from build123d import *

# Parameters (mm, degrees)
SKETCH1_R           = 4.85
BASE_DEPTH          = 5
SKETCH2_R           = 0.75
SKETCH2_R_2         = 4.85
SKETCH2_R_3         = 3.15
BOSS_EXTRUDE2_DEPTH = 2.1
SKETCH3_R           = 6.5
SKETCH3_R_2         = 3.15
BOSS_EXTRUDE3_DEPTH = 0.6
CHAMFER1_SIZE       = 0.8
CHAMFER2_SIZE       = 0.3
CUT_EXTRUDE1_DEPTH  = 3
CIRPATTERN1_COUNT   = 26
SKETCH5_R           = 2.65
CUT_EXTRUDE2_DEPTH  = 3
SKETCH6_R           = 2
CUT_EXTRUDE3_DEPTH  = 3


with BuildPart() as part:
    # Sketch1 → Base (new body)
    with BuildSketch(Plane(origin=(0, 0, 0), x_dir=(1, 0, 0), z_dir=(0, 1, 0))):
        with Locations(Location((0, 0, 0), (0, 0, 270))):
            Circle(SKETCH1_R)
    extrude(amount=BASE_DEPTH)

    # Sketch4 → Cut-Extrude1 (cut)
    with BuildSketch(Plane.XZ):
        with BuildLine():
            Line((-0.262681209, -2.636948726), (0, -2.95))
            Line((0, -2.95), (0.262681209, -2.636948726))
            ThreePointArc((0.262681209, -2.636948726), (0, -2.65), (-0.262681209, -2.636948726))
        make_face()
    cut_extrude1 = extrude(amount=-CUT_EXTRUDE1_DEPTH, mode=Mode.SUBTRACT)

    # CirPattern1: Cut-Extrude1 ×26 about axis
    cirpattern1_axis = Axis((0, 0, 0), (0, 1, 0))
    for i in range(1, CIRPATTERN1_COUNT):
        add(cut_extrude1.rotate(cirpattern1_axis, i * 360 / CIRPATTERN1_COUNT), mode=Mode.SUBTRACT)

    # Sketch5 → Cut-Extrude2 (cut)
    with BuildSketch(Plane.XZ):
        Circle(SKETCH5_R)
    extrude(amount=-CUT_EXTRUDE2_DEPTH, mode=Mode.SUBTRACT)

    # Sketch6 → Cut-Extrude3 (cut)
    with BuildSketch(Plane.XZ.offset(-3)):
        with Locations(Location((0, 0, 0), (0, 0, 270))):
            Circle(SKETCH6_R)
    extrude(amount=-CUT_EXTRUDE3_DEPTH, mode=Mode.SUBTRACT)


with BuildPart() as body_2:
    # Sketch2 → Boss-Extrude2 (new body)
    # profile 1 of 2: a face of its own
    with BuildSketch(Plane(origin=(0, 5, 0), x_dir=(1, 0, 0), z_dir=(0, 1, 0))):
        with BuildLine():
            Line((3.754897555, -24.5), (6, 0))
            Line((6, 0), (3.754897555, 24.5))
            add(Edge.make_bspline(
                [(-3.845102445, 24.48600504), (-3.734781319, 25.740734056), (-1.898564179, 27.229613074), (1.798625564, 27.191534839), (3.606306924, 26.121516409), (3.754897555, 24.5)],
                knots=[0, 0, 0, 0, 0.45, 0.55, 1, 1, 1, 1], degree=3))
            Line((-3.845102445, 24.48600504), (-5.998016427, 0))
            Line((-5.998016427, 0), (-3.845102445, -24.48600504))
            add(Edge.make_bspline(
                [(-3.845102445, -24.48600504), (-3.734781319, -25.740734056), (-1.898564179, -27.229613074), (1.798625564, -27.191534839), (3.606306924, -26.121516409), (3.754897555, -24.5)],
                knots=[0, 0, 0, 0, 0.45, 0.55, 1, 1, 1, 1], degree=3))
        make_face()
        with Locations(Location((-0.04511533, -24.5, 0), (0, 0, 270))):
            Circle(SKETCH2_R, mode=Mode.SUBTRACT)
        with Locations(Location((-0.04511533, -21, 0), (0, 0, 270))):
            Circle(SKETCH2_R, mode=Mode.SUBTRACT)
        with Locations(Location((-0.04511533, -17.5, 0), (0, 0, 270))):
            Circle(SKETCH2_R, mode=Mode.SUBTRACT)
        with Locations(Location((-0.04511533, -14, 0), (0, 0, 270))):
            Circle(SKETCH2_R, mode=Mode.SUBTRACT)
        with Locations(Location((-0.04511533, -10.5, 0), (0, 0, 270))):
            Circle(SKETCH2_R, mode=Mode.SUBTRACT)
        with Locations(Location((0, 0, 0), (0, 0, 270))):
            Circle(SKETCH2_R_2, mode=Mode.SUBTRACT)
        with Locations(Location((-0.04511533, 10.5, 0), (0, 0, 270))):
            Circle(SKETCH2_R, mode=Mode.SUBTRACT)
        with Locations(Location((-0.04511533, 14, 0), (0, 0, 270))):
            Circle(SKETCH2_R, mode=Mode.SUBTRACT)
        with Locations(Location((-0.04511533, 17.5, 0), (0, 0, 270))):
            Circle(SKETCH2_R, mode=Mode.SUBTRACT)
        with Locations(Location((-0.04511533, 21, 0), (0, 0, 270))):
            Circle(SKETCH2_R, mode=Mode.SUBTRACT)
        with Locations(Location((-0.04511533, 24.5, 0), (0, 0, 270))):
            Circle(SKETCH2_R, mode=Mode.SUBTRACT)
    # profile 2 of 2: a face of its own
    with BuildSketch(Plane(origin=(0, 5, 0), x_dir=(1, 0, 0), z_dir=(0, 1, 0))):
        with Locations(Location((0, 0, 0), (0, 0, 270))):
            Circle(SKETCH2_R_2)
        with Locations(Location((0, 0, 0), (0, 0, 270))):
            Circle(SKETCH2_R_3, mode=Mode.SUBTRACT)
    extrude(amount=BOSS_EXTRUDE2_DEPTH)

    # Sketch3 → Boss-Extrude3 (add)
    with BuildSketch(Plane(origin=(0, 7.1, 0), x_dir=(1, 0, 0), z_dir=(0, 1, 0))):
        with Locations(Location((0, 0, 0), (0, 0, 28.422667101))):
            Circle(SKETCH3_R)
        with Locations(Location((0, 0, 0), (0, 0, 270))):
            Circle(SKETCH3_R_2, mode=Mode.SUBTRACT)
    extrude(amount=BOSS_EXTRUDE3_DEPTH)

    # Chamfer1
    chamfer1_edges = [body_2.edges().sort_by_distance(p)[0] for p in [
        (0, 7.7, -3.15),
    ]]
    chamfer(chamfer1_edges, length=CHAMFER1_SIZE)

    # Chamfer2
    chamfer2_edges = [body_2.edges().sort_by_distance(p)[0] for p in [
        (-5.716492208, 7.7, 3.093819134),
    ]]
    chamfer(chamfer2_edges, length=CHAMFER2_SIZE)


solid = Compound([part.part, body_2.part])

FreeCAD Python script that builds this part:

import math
import FreeCAD as App
import Part
import Sketcher

V = App.Vector
Q = App.Units.Quantity


def edges_at(feature, points):
    """Names of the edges that pass closest to the given points."""
    edges = feature.Shape.Edges
    near = lambda p: min(range(len(edges)), key=lambda i: edges[i].distToShape(Part.Vertex(*p))[0])
    return sorted({f"Edge{near(p) + 1}" for p in points})

doc = App.newDocument("Part")
body = doc.addObject("PartDesign::Body", "Body")

sketch1 = body.newObject("Sketcher::SketchObject", "Sketch")
sketch1.AttachmentSupport = (doc.getObject("XZ_Plane"), [""])
sketch1.MapMode = "FlatFace"
sketch1.addGeometry(Part.Circle(V(0, 0, 0), V(0, 0, 1), 4.8), False)
sketch1.addConstraint(Sketcher.Constraint("Coincident", 0, 3, -1, 1))
sketch1.addConstraint(Sketcher.Constraint("Diameter", 0, 9.7))
pad1 = body.newObject("PartDesign::Pad", "Pad")
pad1.Profile = sketch1
pad1.Length = 5
pad1.Reversed = True

sketch2 = body.newObject("Sketcher::SketchObject", "Sketch001")
sketch2.AttachmentSupport = (doc.getObject("XZ_Plane"), [""])
sketch2.MapMode = "FlatFace"
sketch2.addGeometry(Part.LineSegment(V(-0.26, -2.64, 0), V(0, -2.95, 0)), False)
sketch2.addGeometry(Part.LineSegment(V(0, -2.95, 0), V(0.26, -2.64, 0)), False)
sketch2.addGeometry(Part.ArcOfCircle(Part.Circle(V(0, 0, 0), V(0, 0, 1), 2.65), math.radians(-95.69), math.radians(-84.31)), False)
sketch2.addConstraint(Sketcher.Constraint("Coincident", 0, 2, 1, 1))
sketch2.addConstraint(Sketcher.Constraint("Coincident", 1, 2, 2, 2))
sketch2.addConstraint(Sketcher.Constraint("Coincident", 2, 1, 0, 1))
sketch2.addConstraint(Sketcher.Constraint("Coincident", 2, 3, -1, 1))
sketch2.addConstraint(Sketcher.Constraint("PointOnObject", 0, 2, -2))
sketch2.addConstraint(Sketcher.Constraint("Horizontal", 1, 2, 2, 1))
sketch2.addConstraint(Sketcher.Constraint("Angle", 0, Q("-50 deg")))
sketch2.addConstraint(Sketcher.Constraint("Radius", 2, 2.65))
sketch2.addConstraint(Sketcher.Constraint("DistanceY", 0, 2, -1, 1, 2.95))
pocket1 = body.newObject("PartDesign::Pocket", "Pocket")
pocket1.Profile = sketch2
pocket1.Length = 3
doc.recompute()

polarpattern = body.newObject("PartDesign::PolarPattern", "PolarPattern")
polarpattern.Originals = [pocket1]
polarpattern.Axis = (doc.getObject("Y_Axis"), [""])
polarpattern.Angle = 360
polarpattern.Occurrences = 26
body.Tip = polarpattern

sketch3 = body.newObject("Sketcher::SketchObject", "Sketch002")
sketch3.AttachmentSupport = (doc.getObject("XZ_Plane"), [""])
sketch3.MapMode = "FlatFace"
sketch3.addGeometry(Part.Circle(V(0, 0, 0), V(0, 0, 1), 2.6), False)
sketch3.addConstraint(Sketcher.Constraint("Coincident", 0, 3, -1, 1))
sketch3.addConstraint(Sketcher.Constraint("Diameter", 0, 5.3))
pocket2 = body.newObject("PartDesign::Pocket", "Pocket001")
pocket2.Profile = sketch3
pocket2.Length = 3

sketch4 = body.newObject("Sketcher::SketchObject", "Sketch003")
sketch4.AttachmentSupport = (doc.getObject("XZ_Plane"), [""])
sketch4.MapMode = "FlatFace"
sketch4.AttachmentOffset = App.Placement(V(0, 0, -3), App.Rotation())
sketch4.addGeometry(Part.Circle(V(0, 0, 0), V(0, 0, 1), 2), False)
sketch4.addConstraint(Sketcher.Constraint("Coincident", 0, 3, -1, 1))
sketch4.addConstraint(Sketcher.Constraint("Diameter", 0, 4.0))
pocket3 = body.newObject("PartDesign::Pocket", "Pocket002")
pocket3.Profile = sketch4
pocket3.Length = 3
body2 = doc.addObject("PartDesign::Body", "Body001")

sketch5 = body2.newObject("Sketcher::SketchObject", "Sketch004")
sketch5.AttachmentSupport = (doc.getObject("XZ_Plane001"), [""])
sketch5.MapMode = "FlatFace"
sketch5.AttachmentOffset = App.Placement(V(0, 0, -5), App.Rotation())
sketch5.addGeometry(Part.LineSegment(V(3.754898, 24.5, 0), V(6, 0, 0)), False)
sketch5.addGeometry(Part.LineSegment(V(6, 0, 0), V(3.754898, -24.5, 0)), False)
sketch5.addGeometry(Part.BSplineCurve([V(-3.845102, -24.486005, 0), V(-3.734781, -25.740734, 0), V(-1.898564, -27.229613, 0), V(1.798626, -27.191535, 0), V(3.606307, -26.121516, 0), V(3.754898, -24.5, 0)], [4, 1, 1, 4], [0, 0.45, 0.55, 1], False, 3, [1, 1, 1, 1, 1, 1], False), False)
sketch5.addGeometry(Part.LineSegment(V(-3.845102, -24.486005, 0), V(-5.998016, 0, 0)), False)
sketch5.addGeometry(Part.LineSegment(V(-5.998016, 0, 0), V(-3.845102, 24.486005, 0)), False)
sketch5.addGeometry(Part.BSplineCurve([V(-3.845102, 24.486005, 0), V(-3.734781, 25.740734, 0), V(-1.898564, 27.229613, 0), V(1.798626, 27.191535, 0), V(3.606307, 26.121516, 0), V(3.754898, 24.5, 0)], [4, 1, 1, 4], [0, 0.45, 0.55, 1], False, 3, [1, 1, 1, 1, 1, 1], False), False)
sketch5.addGeometry(Part.Circle(V(-0.045115, 24.5, 0), V(0, 0, 1), 0.75), False)
sketch5.addGeometry(Part.Circle(V(-0.045115, 21, 0), V(0, 0, 1), 0.75), False)
sketch5.addGeometry(Part.Circle(V(-0.045115, 17.5, 0), V(0, 0, 1), 0.75), False)
sketch5.addGeometry(Part.Circle(V(-0.045115, 14, 0), V(0, 0, 1), 0.75), False)
sketch5.addGeometry(Part.Circle(V(-0.045115, 10.5, 0), V(0, 0, 1), 0.75), False)
sketch5.addGeometry(Part.Circle(V(-0.045115, -10.5, 0), V(0, 0, 1), 0.75), False)
sketch5.addGeometry(Part.Circle(V(-0.045115, -14, 0), V(0, 0, 1), 0.75), False)
sketch5.addGeometry(Part.Circle(V(-0.045115, -17.5, 0), V(0, 0, 1), 0.75), False)
sketch5.addGeometry(Part.Circle(V(-0.045115, -21, 0), V(0, 0, 1), 0.75), False)
sketch5.addGeometry(Part.Circle(V(-0.045115, -24.5, 0), V(0, 0, 1), 0.75), False)
sketch5.addGeometry(Part.Circle(V(0, 0, 0), V(0, 0, 1), 3.15), False)
sketch5.addConstraint(Sketcher.Constraint("Block", 2))
sketch5.addConstraint(Sketcher.Constraint("Block", 5))
sketch5.addConstraint(Sketcher.Constraint("Coincident", 0, 2, 1, 1))
sketch5.addConstraint(Sketcher.Constraint("Coincident", 1, 2, 2, 2))
sketch5.addConstraint(Sketcher.Constraint("Coincident", 2, 1, 3, 1))
sketch5.addConstraint(Sketcher.Constraint("Coincident", 3, 2, 4, 1))
sketch5.addConstraint(Sketcher.Constraint("Coincident", 4, 2, 5, 1))
sketch5.addConstraint(Sketcher.Constraint("Coincident", 5, 2, 0, 1))
sketch5.addConstraint(Sketcher.Constraint("Coincident", 16, 3, -1, 1))
sketch5.addConstraint(Sketcher.Constraint("Equal", 6, 7))
sketch5.addConstraint(Sketcher.Constraint("Equal", 7, 8))
sketch5.addConstraint(Sketcher.Constraint("Equal", 8, 9))
sketch5.addConstraint(Sketcher.Constraint("Equal", 9, 10))
sketch5.addConstraint(Sketcher.Constraint("Equal", 10, 11))
sketch5.addConstraint(Sketcher.Constraint("Equal", 11, 12))
sketch5.addConstraint(Sketcher.Constraint("Equal", 12, 13))
sketch5.addConstraint(Sketcher.Constraint("Equal", 13, 14))
sketch5.addConstraint(Sketcher.Constraint("Equal", 14, 15))
sketch5.addConstraint(Sketcher.Constraint("Symmetric", 10, 3, 11, 3, -1))
sketch5.addConstraint(Sketcher.Constraint("Symmetric", 9, 3, 12, 3, -1))
sketch5.addConstraint(Sketcher.Constraint("Symmetric", 8, 3, 13, 3, -1))
sketch5.addConstraint(Sketcher.Constraint("Symmetric", 7, 3, 14, 3, -1))
sketch5.addConstraint(Sketcher.Constraint("Symmetric", 6, 3, 15, 3, -1))
sketch5.addConstraint(Sketcher.Constraint("PointOnObject", 0, 2, -1))
sketch5.addConstraint(Sketcher.Constraint("PointOnObject", 3, 2, -1))
sketch5.addConstraint(Sketcher.Constraint("Horizontal", 15, 3, 1, 2))
sketch5.addConstraint(Sketcher.Constraint("Vertical", 6, 3, 7, 3))
sketch5.addConstraint(Sketcher.Constraint("Vertical", 7, 3, 8, 3))
sketch5.addConstraint(Sketcher.Constraint("Vertical", 8, 3, 9, 3))
sketch5.addConstraint(Sketcher.Constraint("Vertical", 9, 3, 10, 3))
sketch5.addConstraint(Sketcher.Constraint("Diameter", 6, 1.5))
sketch5.addConstraint(Sketcher.Constraint("Diameter", 16, 6.3))
sketch5.addConstraint(Sketcher.Constraint("DistanceY", -1, 1, 7, 3, 21.0))
sketch5.addConstraint(Sketcher.Constraint("DistanceY", -1, 1, 9, 3, 14.0))
sketch5.addConstraint(Sketcher.Constraint("DistanceX", -1, 1, 0, 2, 6.0))
sketch5.addConstraint(Sketcher.Constraint("DistanceY", 8, 3, 6, 3, 7.0))
sketch5.addConstraint(Sketcher.Constraint("DistanceY", 10, 3, 8, 3, 7.0))
sketch5.addConstraint(Sketcher.Constraint("DistanceX", 3, 2, 10, 3, 5.952901))
sketch5.addConstraint(Sketcher.Constraint("Distance", 3, 24.58047))
pad2 = body2.newObject("PartDesign::Pad", "Pad001")
pad2.Profile = sketch5
pad2.Length = 2.1
pad2.Reversed = True

sketch6 = body2.newObject("Sketcher::SketchObject", "Sketch005")
sketch6.AttachmentSupport = (doc.getObject("XZ_Plane001"), [""])
sketch6.MapMode = "FlatFace"
sketch6.AttachmentOffset = App.Placement(V(0, 0, -7.1), App.Rotation())
sketch6.addGeometry(Part.Circle(V(0, 0, 0), V(0, 0, 1), 6.5), False)
sketch6.addGeometry(Part.Circle(V(0, 0, 0), V(0, 0, 1), 3.1), False)
sketch6.addConstraint(Sketcher.Constraint("Coincident", 0, 3, -1, 1))
sketch6.addConstraint(Sketcher.Constraint("Coincident", 1, 3, -1, 1))
sketch6.addConstraint(Sketcher.Constraint("Diameter", 0, 13.0))
sketch6.addConstraint(Sketcher.Constraint("Diameter", 1, 6.3))
pad3 = body2.newObject("PartDesign::Pad", "Pad002")
pad3.Profile = sketch6
pad3.Length = 0.6
pad3.Reversed = True
doc.recompute()

chamfer = body2.newObject("PartDesign::Chamfer", "Chamfer")
chamfer.Base = (pad3, edges_at(pad3, [(0, 7.7, -3.15)]))
chamfer.Size = 0.8
doc.recompute()

chamfer2 = body2.newObject("PartDesign::Chamfer", "Chamfer001")
chamfer2.Base = (chamfer, edges_at(chamfer, [(-5.716, 7.7, 3.094)]))
chamfer2.Size = 0.3

doc.recompute()
